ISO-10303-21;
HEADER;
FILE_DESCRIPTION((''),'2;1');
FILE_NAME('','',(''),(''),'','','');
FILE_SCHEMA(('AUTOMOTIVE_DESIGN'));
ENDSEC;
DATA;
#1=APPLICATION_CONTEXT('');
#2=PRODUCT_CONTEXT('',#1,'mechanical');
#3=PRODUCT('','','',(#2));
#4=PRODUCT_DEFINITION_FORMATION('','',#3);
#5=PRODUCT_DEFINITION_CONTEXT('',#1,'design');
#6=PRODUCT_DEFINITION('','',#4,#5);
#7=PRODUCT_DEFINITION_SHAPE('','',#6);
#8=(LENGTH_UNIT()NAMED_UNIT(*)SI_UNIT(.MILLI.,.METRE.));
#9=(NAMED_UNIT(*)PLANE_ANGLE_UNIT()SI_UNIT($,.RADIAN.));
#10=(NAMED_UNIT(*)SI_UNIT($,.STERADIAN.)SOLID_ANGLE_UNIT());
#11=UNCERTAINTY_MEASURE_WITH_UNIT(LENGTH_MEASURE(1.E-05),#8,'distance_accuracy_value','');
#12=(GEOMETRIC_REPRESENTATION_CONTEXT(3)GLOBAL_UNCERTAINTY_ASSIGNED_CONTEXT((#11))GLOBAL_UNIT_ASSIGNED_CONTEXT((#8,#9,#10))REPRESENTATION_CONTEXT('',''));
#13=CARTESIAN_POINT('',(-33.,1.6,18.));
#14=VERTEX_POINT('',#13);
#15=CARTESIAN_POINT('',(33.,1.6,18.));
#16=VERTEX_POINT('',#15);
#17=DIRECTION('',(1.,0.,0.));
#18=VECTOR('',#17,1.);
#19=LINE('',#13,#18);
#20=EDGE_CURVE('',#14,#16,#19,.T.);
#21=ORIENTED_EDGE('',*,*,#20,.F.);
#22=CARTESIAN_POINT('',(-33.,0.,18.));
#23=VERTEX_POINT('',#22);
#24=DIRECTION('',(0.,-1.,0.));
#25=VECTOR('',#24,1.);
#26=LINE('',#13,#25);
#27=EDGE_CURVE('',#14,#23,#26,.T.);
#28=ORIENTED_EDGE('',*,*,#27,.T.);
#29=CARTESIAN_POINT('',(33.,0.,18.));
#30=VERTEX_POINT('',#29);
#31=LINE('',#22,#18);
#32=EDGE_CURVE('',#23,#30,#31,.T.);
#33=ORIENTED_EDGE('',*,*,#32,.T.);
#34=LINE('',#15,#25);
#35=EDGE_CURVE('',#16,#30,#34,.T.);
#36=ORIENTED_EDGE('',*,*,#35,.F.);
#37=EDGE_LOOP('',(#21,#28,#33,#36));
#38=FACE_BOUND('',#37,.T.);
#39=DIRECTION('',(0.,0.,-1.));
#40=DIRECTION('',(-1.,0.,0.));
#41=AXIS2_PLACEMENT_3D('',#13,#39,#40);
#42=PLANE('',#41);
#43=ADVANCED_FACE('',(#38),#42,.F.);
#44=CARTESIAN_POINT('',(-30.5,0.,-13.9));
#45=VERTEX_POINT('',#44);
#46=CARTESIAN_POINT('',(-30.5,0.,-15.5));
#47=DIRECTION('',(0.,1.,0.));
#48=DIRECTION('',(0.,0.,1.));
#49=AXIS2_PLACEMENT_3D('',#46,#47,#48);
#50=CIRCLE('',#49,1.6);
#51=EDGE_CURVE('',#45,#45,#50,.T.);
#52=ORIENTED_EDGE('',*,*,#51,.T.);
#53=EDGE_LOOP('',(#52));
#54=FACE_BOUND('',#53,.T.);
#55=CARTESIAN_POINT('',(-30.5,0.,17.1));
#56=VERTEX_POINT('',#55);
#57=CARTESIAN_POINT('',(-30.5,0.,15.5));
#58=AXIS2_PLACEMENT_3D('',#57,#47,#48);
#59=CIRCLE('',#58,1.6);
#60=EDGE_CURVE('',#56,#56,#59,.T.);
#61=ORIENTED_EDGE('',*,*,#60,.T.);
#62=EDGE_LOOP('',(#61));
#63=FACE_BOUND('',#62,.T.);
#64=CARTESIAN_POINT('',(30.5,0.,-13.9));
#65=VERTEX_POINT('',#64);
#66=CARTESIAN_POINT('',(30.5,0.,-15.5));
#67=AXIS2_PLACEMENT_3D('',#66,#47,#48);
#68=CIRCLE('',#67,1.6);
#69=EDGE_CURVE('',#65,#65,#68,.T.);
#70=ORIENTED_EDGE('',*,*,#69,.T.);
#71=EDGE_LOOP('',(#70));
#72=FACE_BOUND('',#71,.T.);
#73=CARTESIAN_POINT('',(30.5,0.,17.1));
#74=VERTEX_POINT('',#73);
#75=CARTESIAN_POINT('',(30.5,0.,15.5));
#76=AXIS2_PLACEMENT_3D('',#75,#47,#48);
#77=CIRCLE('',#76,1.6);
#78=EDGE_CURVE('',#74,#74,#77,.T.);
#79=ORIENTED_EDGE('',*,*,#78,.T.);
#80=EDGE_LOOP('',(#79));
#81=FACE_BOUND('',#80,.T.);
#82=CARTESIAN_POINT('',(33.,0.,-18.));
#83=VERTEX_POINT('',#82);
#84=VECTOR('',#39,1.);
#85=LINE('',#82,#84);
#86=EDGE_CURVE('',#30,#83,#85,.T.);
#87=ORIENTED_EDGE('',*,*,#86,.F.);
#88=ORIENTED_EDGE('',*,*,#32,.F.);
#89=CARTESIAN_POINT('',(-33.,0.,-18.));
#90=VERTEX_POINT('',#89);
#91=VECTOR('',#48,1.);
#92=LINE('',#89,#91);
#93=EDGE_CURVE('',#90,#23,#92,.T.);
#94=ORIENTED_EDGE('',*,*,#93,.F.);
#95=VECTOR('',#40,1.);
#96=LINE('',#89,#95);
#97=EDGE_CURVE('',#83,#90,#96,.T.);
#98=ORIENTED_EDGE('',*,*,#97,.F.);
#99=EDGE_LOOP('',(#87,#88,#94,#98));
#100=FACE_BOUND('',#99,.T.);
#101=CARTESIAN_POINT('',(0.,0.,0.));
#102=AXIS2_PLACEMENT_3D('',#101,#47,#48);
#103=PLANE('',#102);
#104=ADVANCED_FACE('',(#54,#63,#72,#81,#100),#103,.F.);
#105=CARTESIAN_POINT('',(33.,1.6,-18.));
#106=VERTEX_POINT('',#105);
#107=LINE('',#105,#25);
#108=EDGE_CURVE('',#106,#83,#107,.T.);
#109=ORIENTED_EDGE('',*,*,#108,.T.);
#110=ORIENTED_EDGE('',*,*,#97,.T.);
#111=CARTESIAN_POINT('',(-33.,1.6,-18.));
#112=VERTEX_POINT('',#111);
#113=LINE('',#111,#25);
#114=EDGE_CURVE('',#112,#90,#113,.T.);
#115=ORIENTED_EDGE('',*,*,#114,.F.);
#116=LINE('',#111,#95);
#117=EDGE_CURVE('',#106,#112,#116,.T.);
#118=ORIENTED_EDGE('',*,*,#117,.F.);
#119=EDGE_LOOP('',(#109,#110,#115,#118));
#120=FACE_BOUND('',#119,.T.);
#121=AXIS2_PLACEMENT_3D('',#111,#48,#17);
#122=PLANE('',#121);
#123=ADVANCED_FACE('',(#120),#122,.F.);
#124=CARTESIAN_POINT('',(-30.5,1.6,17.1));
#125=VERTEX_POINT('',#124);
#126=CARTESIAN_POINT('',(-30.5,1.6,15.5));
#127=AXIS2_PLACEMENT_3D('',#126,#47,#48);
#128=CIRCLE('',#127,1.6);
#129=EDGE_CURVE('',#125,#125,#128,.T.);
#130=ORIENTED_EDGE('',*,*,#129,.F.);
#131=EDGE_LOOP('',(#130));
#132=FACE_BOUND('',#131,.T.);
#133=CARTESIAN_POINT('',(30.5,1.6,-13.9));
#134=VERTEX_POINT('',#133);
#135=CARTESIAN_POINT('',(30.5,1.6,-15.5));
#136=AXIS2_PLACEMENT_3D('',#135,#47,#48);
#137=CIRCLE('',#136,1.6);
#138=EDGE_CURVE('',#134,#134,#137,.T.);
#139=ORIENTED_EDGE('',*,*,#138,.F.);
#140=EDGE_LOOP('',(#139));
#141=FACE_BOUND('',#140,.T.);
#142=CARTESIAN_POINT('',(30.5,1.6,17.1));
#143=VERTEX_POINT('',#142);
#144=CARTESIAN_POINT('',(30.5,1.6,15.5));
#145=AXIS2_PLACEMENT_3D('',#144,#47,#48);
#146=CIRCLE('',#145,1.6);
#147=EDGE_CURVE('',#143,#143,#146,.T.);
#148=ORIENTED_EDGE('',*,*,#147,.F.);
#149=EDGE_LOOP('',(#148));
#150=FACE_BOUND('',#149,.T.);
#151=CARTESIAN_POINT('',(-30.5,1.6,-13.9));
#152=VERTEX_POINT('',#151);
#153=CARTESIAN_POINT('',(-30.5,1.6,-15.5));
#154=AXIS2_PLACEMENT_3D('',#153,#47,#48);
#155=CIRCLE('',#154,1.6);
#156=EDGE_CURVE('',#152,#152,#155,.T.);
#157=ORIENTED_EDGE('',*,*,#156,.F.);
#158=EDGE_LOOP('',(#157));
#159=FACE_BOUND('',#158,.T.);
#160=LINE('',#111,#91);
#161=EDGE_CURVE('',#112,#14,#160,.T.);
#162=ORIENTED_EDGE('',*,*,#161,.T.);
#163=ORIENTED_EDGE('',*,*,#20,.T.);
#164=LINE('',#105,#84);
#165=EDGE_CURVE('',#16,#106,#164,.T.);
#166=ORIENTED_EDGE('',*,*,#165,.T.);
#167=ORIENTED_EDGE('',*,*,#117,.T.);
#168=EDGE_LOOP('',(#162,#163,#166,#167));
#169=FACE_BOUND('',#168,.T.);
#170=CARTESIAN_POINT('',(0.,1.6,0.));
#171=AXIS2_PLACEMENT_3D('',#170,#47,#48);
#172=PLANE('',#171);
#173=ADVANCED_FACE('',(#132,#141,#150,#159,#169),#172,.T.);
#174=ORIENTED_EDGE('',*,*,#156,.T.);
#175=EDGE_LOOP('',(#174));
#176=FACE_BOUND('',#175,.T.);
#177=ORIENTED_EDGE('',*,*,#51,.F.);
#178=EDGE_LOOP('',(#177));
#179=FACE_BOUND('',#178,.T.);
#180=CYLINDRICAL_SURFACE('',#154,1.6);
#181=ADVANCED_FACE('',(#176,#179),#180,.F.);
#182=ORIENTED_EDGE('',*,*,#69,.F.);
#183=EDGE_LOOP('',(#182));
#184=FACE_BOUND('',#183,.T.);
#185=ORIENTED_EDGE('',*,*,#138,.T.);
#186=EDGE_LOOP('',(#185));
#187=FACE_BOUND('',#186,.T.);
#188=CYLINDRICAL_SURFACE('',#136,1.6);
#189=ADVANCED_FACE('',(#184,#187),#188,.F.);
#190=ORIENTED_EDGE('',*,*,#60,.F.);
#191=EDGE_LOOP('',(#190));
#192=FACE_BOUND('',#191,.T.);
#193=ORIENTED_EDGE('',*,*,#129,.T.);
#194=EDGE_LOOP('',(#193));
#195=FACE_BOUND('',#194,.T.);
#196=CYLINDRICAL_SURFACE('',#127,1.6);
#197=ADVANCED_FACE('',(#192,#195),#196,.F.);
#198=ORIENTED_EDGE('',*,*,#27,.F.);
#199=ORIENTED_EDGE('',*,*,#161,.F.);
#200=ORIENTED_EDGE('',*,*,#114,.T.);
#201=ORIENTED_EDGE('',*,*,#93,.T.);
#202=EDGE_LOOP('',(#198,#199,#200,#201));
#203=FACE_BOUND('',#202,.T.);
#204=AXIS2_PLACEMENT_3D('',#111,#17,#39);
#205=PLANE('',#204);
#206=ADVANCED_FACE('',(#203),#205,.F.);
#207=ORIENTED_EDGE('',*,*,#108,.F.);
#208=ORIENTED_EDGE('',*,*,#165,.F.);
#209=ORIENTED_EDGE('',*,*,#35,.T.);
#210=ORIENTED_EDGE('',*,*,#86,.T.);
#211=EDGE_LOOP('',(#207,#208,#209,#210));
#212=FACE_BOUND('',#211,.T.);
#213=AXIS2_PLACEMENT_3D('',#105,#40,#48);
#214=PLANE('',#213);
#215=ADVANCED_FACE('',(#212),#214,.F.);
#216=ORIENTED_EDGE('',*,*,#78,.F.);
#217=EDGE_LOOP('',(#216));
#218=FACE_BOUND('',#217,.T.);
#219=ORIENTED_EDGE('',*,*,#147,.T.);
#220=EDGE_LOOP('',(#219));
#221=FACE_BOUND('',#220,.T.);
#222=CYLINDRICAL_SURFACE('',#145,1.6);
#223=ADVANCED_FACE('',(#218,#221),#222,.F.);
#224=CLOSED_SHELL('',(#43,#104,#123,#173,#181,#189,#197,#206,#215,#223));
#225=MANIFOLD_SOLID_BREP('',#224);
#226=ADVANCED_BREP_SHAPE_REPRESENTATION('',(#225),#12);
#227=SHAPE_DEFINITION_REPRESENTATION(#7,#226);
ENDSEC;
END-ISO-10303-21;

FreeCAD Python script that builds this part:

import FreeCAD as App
import Part
import Sketcher


def add_polygon(sketch, points):
    """Adds a closed chain of lines whose ends are joined by coincident constraints."""
    first, n = sketch.GeometryCount, len(points)
    for a, b in zip(points, points[1:] + points[:1]):
        sketch.addGeometry(Part.LineSegment(App.Vector(*a, 0), App.Vector(*b, 0)), False)
    for i in range(n):
        sketch.addConstraint(Sketcher.Constraint("Coincident", first + i, 2, first + (i + 1) % n, 1))

doc = App.newDocument("Part")
body = doc.addObject("PartDesign::Body", "Body")

sketch1 = body.newObject("Sketcher::SketchObject", "Sketch")
sketch1.AttachmentSupport = (doc.getObject("XZ_Plane"), [""])
sketch1.MapMode = "FlatFace"
add_polygon(sketch1, [(-33, -18), (-33, 18), (33, 18), (33, -18)])
sketch1.addConstraint([
    Sketcher.Constraint("Vertical", 0),
    Sketcher.Constraint("Horizontal", 1),
    Sketcher.Constraint("Vertical", 2),
    Sketcher.Constraint("Horizontal", 3),
    Sketcher.Constraint("Symmetric", 0, 2, 2, 2, -1, 1),
    Sketcher.Constraint("DistanceX", 1, 1, 1, 2, 66.0),
    Sketcher.Constraint("DistanceY", 0, 1, 0, 2, 36.0),
])
pad1 = body.newObject("PartDesign::Pad", "Pad")
pad1.Profile = sketch1
pad1.Length = 1.6
pad1.Reversed = True

sketch2 = body.newObject("Sketcher::SketchObject", "Sketch001")
sketch2.AttachmentSupport = (doc.getObject("XZ_Plane"), [""])
sketch2.MapMode = "FlatFace"
sketch2.AttachmentOffset = App.Placement(App.Vector(0, 0, -1.6), App.Rotation())
sketch2.addGeometry(Part.Circle(App.Vector(-30.5, -15.5, 0), App.Vector(0, 0, 1), 1.6), False)
sketch2.addConstraint([
    Sketcher.Constraint("Diameter", 0, 3.2),
    Sketcher.Constraint("DistanceX", 0, 3, -1, 1, 30.5),
    Sketcher.Constraint("DistanceY", 0, 3, -1, 1, 15.5),
])
doc.recompute()
hole = body.newObject("PartDesign::Hole", "Hole")
hole.Profile = sketch2
hole.ThreadType = "None"
hole.Diameter = 3.2
hole.DepthType = "ThroughAll"
hole.Reversed = True
doc.recompute()

mirrored = body.newObject("PartDesign::Mirrored", "Mirrored")
mirrored.Originals = [hole]
mirrored.MirrorPlane = (doc.getObject("YZ_Plane"), [""])
body.Tip = mirrored
doc.recompute()

mirrored2 = body.newObject("PartDesign::Mirrored", "Mirrored001")
mirrored2.Originals = [hole]
mirrored2.MirrorPlane = (doc.getObject("XY_Plane"), [""])
body.Tip = mirrored2

sketch3 = body.newObject("Sketcher::SketchObject", "Sketch002")
sketch3.AttachmentSupport = (doc.getObject("XZ_Plane"), [""])
sketch3.MapMode = "FlatFace"
sketch3.AttachmentOffset = App.Placement(App.Vector(0, 0, -1.6), App.Rotation())
sketch3.addGeometry(Part.Circle(App.Vector(30.5, 15.5, 0), App.Vector(0, 0, 1), 1.6), False)
sketch3.addConstraint([
    Sketcher.Constraint("Diameter", 0, 3.2),
    Sketcher.Constraint("DistanceX", -1, 1, 0, 3, 30.5),
    Sketcher.Constraint("DistanceY", -1, 1, 0, 3, 15.5),
])
doc.recompute()
hole2 = body.newObject("PartDesign::Hole", "Hole001")
hole2.Profile = sketch3
hole2.ThreadType = "None"
hole2.Diameter = 3.2
hole2.DepthType = "ThroughAll"
hole2.Reversed = True

doc.recompute()
